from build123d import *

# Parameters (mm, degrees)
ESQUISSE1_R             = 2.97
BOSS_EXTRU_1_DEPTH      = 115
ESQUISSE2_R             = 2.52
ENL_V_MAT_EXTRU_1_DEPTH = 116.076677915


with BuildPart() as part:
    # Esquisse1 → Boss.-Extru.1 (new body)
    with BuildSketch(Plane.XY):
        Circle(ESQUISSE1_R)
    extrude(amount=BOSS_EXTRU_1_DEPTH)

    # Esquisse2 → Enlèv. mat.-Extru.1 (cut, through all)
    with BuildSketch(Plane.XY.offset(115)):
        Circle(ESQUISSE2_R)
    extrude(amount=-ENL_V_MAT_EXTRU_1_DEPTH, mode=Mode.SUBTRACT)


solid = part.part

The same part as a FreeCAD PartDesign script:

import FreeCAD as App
import Part
import Sketcher

V = App.Vector

doc = App.newDocument("Part")
params = doc.addObject("Spreadsheet::Sheet", "Params")
for row, (alias, value) in enumerate([
    ("sketch1_diameter", "5.94 mm"),
    ("pad1_length", "115 mm"),
    ("sketch2_diameter", "5.04 mm"),
], start=1):
    params.set(f"A{row}", alias)
    params.set(f"B{row}", "=" + value)
    params.setAlias(f"B{row}", alias)

body = doc.addObject("PartDesign::Body", "Body")

sketch1 = body.newObject("Sketcher::SketchObject", "Sketch")
sketch1.AttachmentSupport = (doc.getObject("XY_Plane"), [""])
sketch1.MapMode = "FlatFace"
sketch1.addGeometry(Part.Circle(V(0, 0, 0), V(0, 0, 1), 3), False)
sketch1.addConstraint([
    Sketcher.Constraint("Coincident", 0, 3, -1, 1),
    Sketcher.Constraint("Diameter", 0, 5.94),
])
sketch1.setExpression("Constraints[1]", "Params.sketch1_diameter")
pad1 = body.newObject("PartDesign::Pad", "Pad")
pad1.Profile = sketch1
pad1.setExpression("Length", "Params.pad1_length")

sketch2 = body.newObject("Sketcher::SketchObject", "Sketch001")
sketch2.AttachmentSupport = (doc.getObject("XY_Plane"), [""])
sketch2.MapMode = "FlatFace"
sketch2.AttachmentOffset = App.Placement(V(0, 0, 115), App.Rotation())
sketch2.addGeometry(Part.Circle(V(0, 0, 0), V(0, 0, 1), 2.5), False)
sketch2.addConstraint([
    Sketcher.Constraint("Coincident", 0, 3, -1, 1),
    Sketcher.Constraint("Diameter", 0, 5.04),
])
sketch2.setExpression("Constraints[1]", "Params.sketch2_diameter")
pocket1 = body.newObject("PartDesign::Pocket", "Pocket")
pocket1.Profile = sketch2
pocket1.Type = "ThroughAll"

doc.recompute()
